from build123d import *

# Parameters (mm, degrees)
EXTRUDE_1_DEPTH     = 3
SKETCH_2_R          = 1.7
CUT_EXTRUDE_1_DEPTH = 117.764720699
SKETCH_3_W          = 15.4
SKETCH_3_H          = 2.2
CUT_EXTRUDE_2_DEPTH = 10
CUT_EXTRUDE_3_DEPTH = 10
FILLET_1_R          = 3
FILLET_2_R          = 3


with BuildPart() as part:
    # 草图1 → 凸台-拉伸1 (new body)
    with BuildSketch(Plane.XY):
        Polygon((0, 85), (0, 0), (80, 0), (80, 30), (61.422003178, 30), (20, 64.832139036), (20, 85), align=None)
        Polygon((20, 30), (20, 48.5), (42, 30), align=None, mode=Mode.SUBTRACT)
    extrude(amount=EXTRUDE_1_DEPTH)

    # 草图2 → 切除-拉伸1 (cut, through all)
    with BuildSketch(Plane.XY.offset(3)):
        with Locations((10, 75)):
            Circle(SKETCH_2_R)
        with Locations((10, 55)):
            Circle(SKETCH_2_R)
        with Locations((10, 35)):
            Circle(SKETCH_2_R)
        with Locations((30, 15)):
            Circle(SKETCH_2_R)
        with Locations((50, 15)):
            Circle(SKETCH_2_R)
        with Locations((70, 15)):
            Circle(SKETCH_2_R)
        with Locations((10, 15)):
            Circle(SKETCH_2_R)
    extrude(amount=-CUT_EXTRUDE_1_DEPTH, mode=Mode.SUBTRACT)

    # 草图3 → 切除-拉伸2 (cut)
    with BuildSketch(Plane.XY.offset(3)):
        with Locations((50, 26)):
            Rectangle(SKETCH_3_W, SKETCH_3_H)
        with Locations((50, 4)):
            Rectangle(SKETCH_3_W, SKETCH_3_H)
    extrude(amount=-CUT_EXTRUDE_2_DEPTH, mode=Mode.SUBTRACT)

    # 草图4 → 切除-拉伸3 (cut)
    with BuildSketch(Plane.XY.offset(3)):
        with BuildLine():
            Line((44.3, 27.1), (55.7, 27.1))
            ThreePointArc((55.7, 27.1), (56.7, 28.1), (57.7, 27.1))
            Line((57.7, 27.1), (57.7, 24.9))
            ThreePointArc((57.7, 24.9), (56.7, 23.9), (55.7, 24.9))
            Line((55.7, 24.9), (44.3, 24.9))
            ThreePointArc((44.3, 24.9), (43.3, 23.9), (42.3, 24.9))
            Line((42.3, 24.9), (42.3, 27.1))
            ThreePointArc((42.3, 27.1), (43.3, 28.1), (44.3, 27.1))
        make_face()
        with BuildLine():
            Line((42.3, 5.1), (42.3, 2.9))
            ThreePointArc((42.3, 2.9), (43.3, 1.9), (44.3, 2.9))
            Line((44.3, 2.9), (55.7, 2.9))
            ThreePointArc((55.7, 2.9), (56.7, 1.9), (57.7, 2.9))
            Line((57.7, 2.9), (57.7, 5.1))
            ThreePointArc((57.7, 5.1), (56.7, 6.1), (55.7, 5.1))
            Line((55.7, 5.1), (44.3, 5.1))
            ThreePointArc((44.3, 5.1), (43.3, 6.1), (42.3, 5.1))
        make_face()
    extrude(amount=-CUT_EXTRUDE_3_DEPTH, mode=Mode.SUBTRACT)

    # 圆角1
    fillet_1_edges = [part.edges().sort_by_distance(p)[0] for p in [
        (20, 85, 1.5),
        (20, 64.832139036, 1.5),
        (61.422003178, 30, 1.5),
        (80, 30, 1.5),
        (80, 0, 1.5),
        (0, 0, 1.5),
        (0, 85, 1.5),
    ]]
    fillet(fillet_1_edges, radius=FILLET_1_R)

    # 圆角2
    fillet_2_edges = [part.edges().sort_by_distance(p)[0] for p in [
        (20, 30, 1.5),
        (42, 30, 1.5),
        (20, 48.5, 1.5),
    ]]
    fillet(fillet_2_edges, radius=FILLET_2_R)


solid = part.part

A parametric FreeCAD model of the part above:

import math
import FreeCAD as App
import Part
import Sketcher
Q = App.Units.Quantity


def edges_at(feature, points):
    """Names of the edges that pass closest to the given points."""
    edges = feature.Shape.Edges
    near = lambda p: min(range(len(edges)), key=lambda i: edges[i].distToShape(Part.Vertex(*p))[0])
    return sorted({f"Edge{near(p) + 1}" for p in points})

doc = App.newDocument("Part")
body = doc.addObject("PartDesign::Body", "Body")

# Sketch on XY plane
sketch1 = body.newObject("Sketcher::SketchObject", "Sketch")
sketch1.AttachmentSupport = (doc.getObject("XY_Plane"), [""])
sketch1.MapMode = "FlatFace"
sketch1.addGeometry(Part.LineSegment(App.Vector(0, 85, 0), App.Vector(0, 0, 0)), False)
sketch1.addGeometry(Part.LineSegment(App.Vector(0, 0, 0), App.Vector(80, 0, 0)), False)
sketch1.addGeometry(Part.LineSegment(App.Vector(80, 0, 0), App.Vector(80, 30, 0)), False)
sketch1.addGeometry(Part.LineSegment(App.Vector(80, 30, 0), App.Vector(61, 30, 0)), False)
sketch1.addGeometry(Part.LineSegment(App.Vector(61, 30, 0), App.Vector(20, 65, 0)), False)
sketch1.addGeometry(Part.LineSegment(App.Vector(20, 65, 0), App.Vector(20, 85, 0)), False)
sketch1.addGeometry(Part.LineSegment(App.Vector(20, 85, 0), App.Vector(0, 85, 0)), False)
sketch1.addGeometry(Part.LineSegment(App.Vector(42, 30, 0), App.Vector(20, 30, 0)), False)
sketch1.addGeometry(Part.LineSegment(App.Vector(20, 30, 0), App.Vector(20, 48, 0)), False)
sketch1.addGeometry(Part.LineSegment(App.Vector(20, 48, 0), App.Vector(42, 30, 0)), False)
sketch1.addConstraint(Sketcher.Constraint("Coincident", 0, 2, 1, 1))
sketch1.addConstraint(Sketcher.Constraint("Coincident", 1, 2, 2, 1))
sketch1.addConstraint(Sketcher.Constraint("Coincident", 2, 2, 3, 1))
sketch1.addConstraint(Sketcher.Constraint("Coincident", 3, 2, 4, 1))
sketch1.addConstraint(Sketcher.Constraint("Coincident", 4, 2, 5, 1))
sketch1.addConstraint(Sketcher.Constraint("Coincident", 5, 2, 6, 1))
sketch1.addConstraint(Sketcher.Constraint("Coincident", 6, 2, 0, 1))
sketch1.addConstraint(Sketcher.Constraint("Coincident", 7, 2, 8, 1))
sketch1.addConstraint(Sketcher.Constraint("Coincident", 8, 2, 9, 1))
sketch1.addConstraint(Sketcher.Constraint("Coincident", 9, 2, 7, 1))
sketch1.addConstraint(Sketcher.Constraint("Vertical", 0))
sketch1.addConstraint(Sketcher.Constraint("Horizontal", 1))
sketch1.addConstraint(Sketcher.Constraint("Vertical", 2))
sketch1.addConstraint(Sketcher.Constraint("Horizontal", 3))
sketch1.addConstraint(Sketcher.Constraint("Vertical", 5))
sketch1.addConstraint(Sketcher.Constraint("Horizontal", 6))
sketch1.addConstraint(Sketcher.Constraint("Horizontal", 7))
sketch1.addConstraint(Sketcher.Constraint("Vertical", 8))
sketch1.addConstraint(Sketcher.Constraint("Coincident", 0, 2, -1, 1))
sketch1.addConstraint(Sketcher.Constraint("Parallel", 4, 9))
sketch1.addConstraint(Sketcher.Constraint("Horizontal", 3, 2, 7, 2))
sketch1.addConstraint(Sketcher.Constraint("Vertical", 5, 2, 7, 2))
sketch1.addConstraint(Sketcher.Constraint("DistanceX", 1, 1, 1, 2, Q("80 mm")))
sketch1.addConstraint(Sketcher.Constraint("DistanceX", 6, 2, 6, 1, Q("20 mm")))
sketch1.addConstraint(Sketcher.Constraint("DistanceX", 7, 2, 7, 1, Q("22 mm")))
sketch1.addConstraint(Sketcher.Constraint("DistanceY", 0, 2, 0, 1, Q("85 mm")))
sketch1.addConstraint(Sketcher.Constraint("DistanceY", 2, 1, 2, 2, Q("30 mm")))
sketch1.addConstraint(Sketcher.Constraint("DistanceY", 8, 1, 8, 2, Q("18.5 mm")))
sketch1.addConstraint(Sketcher.Constraint("DistanceY", 5, 1, 5, 2, Q("20.167861 mm")))
pad1 = body.newObject("PartDesign::Pad", "Pad")
pad1.Profile = sketch1
pad1.Length = 3

# Sketch on XY plane
sketch2 = body.newObject("Sketcher::SketchObject", "Sketch001")
sketch2.AttachmentSupport = (doc.getObject("XY_Plane"), [""])
sketch2.MapMode = "FlatFace"
sketch2.AttachmentOffset = App.Placement(App.Vector(0, 0, 3), App.Rotation())
sketch2.addGeometry(Part.Circle(App.Vector(10, 75, 0), App.Vector(0, 0, 1), 1.7), False)
sketch2.addGeometry(Part.Circle(App.Vector(10, 55, 0), App.Vector(0, 0, 1), 1.7), False)
sketch2.addGeometry(Part.Circle(App.Vector(10, 35, 0), App.Vector(0, 0, 1), 1.7), False)
sketch2.addGeometry(Part.Circle(App.Vector(30, 15, 0), App.Vector(0, 0, 1), 1.7), False)
sketch2.addGeometry(Part.Circle(App.Vector(50, 15, 0), App.Vector(0, 0, 1), 1.7), False)
sketch2.addGeometry(Part.Circle(App.Vector(70, 15, 0), App.Vector(0, 0, 1), 1.7), False)
sketch2.addGeometry(Part.Circle(App.Vector(10, 15, 0), App.Vector(0, 0, 1), 1.7), False)
sketch2.addConstraint(Sketcher.Constraint("Equal", 0, 1))
sketch2.addConstraint(Sketcher.Constraint("Equal", 1, 2))
sketch2.addConstraint(Sketcher.Constraint("Equal", 2, 3))
sketch2.addConstraint(Sketcher.Constraint("Equal", 3, 4))
sketch2.addConstraint(Sketcher.Constraint("Equal", 4, 5))
sketch2.addConstraint(Sketcher.Constraint("Equal", 5, 6))
sketch2.addConstraint(Sketcher.Constraint("Horizontal", 3, 3, 4, 3))
sketch2.addConstraint(Sketcher.Constraint("Horizontal", 4, 3, 5, 3))
sketch2.addConstraint(Sketcher.Constraint("Horizontal", 5, 3, 6, 3))
sketch2.addConstraint(Sketcher.Constraint("Vertical", 0, 3, 1, 3))
sketch2.addConstraint(Sketcher.Constraint("Vertical", 1, 3, 2, 3))
sketch2.addConstraint(Sketcher.Constraint("Vertical", 2, 3, 6, 3))
sketch2.addConstraint(Sketcher.Constraint("Diameter", 0, Q("3.4 mm")))
sketch2.addConstraint(Sketcher.Constraint("DistanceX", -1, 1, 0, 3, Q("10 mm")))
sketch2.addConstraint(Sketcher.Constraint("DistanceY", -1, 1, 0, 3, Q("75 mm")))
sketch2.addConstraint(Sketcher.Constraint("DistanceY", -1, 1, 1, 3, Q("55 mm")))
sketch2.addConstraint(Sketcher.Constraint("DistanceY", -1, 1, 2, 3, Q("35 mm")))
sketch2.addConstraint(Sketcher.Constraint("DistanceX", -1, 1, 3, 3, Q("30 mm")))
sketch2.addConstraint(Sketcher.Constraint("DistanceY", -1, 1, 3, 3, Q("15 mm")))
sketch2.addConstraint(Sketcher.Constraint("DistanceX", -1, 1, 4, 3, Q("50 mm")))
sketch2.addConstraint(Sketcher.Constraint("DistanceX", -1, 1, 5, 3, Q("70 mm")))
pocket1 = body.newObject("PartDesign::Pocket", "Pocket")
pocket1.Profile = sketch2
pocket1.Type = "ThroughAll"

# Sketch on XY plane
sketch3 = body.newObject("Sketcher::SketchObject", "Sketch002")
sketch3.AttachmentSupport = (doc.getObject("XY_Plane"), [""])
sketch3.MapMode = "FlatFace"
sketch3.AttachmentOffset = App.Placement(App.Vector(0, 0, 3), App.Rotation())
sketch3.addGeometry(Part.LineSegment(App.Vector(42.3, 27.1, 0), App.Vector(42.3, 24.9, 0)), False)
sketch3.addGeometry(Part.LineSegment(App.Vector(42.3, 24.9, 0), App.Vector(57.7, 24.9, 0)), False)
sketch3.addGeometry(Part.LineSegment(App.Vector(57.7, 24.9, 0), App.Vector(57.7, 27.1, 0)), False)
sketch3.addGeometry(Part.LineSegment(App.Vector(57.7, 27.1, 0), App.Vector(42.3, 27.1, 0)), False)
sketch3.addGeometry(Part.LineSegment(App.Vector(42.3, 5.1, 0), App.Vector(42.3, 2.9, 0)), False)
sketch3.addGeometry(Part.LineSegment(App.Vector(42.3, 2.9, 0), App.Vector(57.7, 2.9, 0)), False)
sketch3.addGeometry(Part.LineSegment(App.Vector(57.7, 2.9, 0), App.Vector(57.7, 5.1, 0)), False)
sketch3.addGeometry(Part.LineSegment(App.Vector(57.7, 5.1, 0), App.Vector(42.3, 5.1, 0)), False)
sketch3.addConstraint(Sketcher.Constraint("Coincident", 0, 2, 1, 1))
sketch3.addConstraint(Sketcher.Constraint("Coincident", 1, 2, 2, 1))
sketch3.addConstraint(Sketcher.Constraint("Coincident", 2, 2, 3, 1))
sketch3.addConstraint(Sketcher.Constraint("Coincident", 3, 2, 0, 1))
sketch3.addConstraint(Sketcher.Constraint("Coincident", 4, 2, 5, 1))
sketch3.addConstraint(Sketcher.Constraint("Coincident", 5, 2, 6, 1))
sketch3.addConstraint(Sketcher.Constraint("Coincident", 6, 2, 7, 1))
sketch3.addConstraint(Sketcher.Constraint("Coincident", 7, 2, 4, 1))
sketch3.addConstraint(Sketcher.Constraint("Vertical", 0))
sketch3.addConstraint(Sketcher.Constraint("Horizontal", 1))
sketch3.addConstraint(Sketcher.Constraint("Vertical", 2))
sketch3.addConstraint(Sketcher.Constraint("Horizontal", 3))
sketch3.addConstraint(Sketcher.Constraint("Vertical", 4))
sketch3.addConstraint(Sketcher.Constraint("Horizontal", 5))
sketch3.addConstraint(Sketcher.Constraint("Vertical", 6))
sketch3.addConstraint(Sketcher.Constraint("Horizontal", 7))
sketch3.addConstraint(Sketcher.Constraint("Vertical", 3, 2, 4, 2))
sketch3.addConstraint(Sketcher.Constraint("Vertical", 2, 2, 5, 2))
sketch3.addConstraint(Sketcher.Constraint("Equal", 2, 4))
sketch3.addConstraint(Sketcher.Constraint("DistanceX", 1, 1, 1, 2, Q("15.4 mm")))
sketch3.addConstraint(Sketcher.Constraint("DistanceY", 0, 2, 0, 1, Q("2.2 mm")))
sketch3.addConstraint(Sketcher.Constraint("DistanceY", 4, 2, 0, 2, Q("22 mm")))
sketch3.addConstraint(Sketcher.Constraint("DistanceX", -1, 1, 0, 2, Q("42.3 mm")))
sketch3.addConstraint(Sketcher.Constraint("DistanceY", -1, 1, 0, 2, Q("24.9 mm")))
pocket2 = body.newObject("PartDesign::Pocket", "Pocket001")
pocket2.Profile = sketch3
pocket2.Length = 10

# Sketch on XY plane
sketch4 = body.newObject("Sketcher::SketchObject", "Sketch003")
sketch4.AttachmentSupport = (doc.getObject("XY_Plane"), [""])
sketch4.MapMode = "FlatFace"
sketch4.AttachmentOffset = App.Placement(App.Vector(0, 0, 3), App.Rotation())
sketch4.addGeometry(Part.LineSegment(App.Vector(55.7, 27.1, 0), App.Vector(44.3, 27.1, 0)), False)
sketch4.addGeometry(Part.ArcOfCircle(Part.Circle(App.Vector(43.3, 27.1, 0), App.Vector(0, 0, 1), 1), math.radians(0), math.radians(180)), False)
sketch4.addGeometry(Part.LineSegment(App.Vector(42.3, 27.1, 0), App.Vector(42.3, 24.9, 0)), False)
sketch4.addGeometry(Part.ArcOfCircle(Part.Circle(App.Vector(43.3, 24.9, 0), App.Vector(0, 0, 1), 1), math.radians(180), math.radians(360)), False)
sketch4.addGeometry(Part.LineSegment(App.Vector(44.3, 24.9, 0), App.Vector(55.7, 24.9, 0)), False)
sketch4.addGeometry(Part.ArcOfCircle(Part.Circle(App.Vector(56.7, 24.9, 0), App.Vector(0, 0, 1), 1), math.radians(180), math.radians(360)), False)
sketch4.addGeometry(Part.LineSegment(App.Vector(57.7, 24.9, 0), App.Vector(57.7, 27.1, 0)), False)
sketch4.addGeometry(Part.ArcOfCircle(Part.Circle(App.Vector(56.7, 27.1, 0), App.Vector(0, 0, 1), 1), math.radians(0), math.radians(180)), False)
sketch4.addGeometry(Part.LineSegment(App.Vector(42.3, 5.1, 0), App.Vector(42.3, 2.9, 0)), False)
sketch4.addGeometry(Part.ArcOfCircle(Part.Circle(App.Vector(43.3, 2.9, 0), App.Vector(0, 0, 1), 1), math.radians(180), math.radians(360)), False)
sketch4.addGeometry(Part.LineSegment(App.Vector(44.3, 2.9, 0), App.Vector(55.7, 2.9, 0)), False)
sketch4.addGeometry(Part.ArcOfCircle(Part.Circle(App.Vector(56.7, 2.9, 0), App.Vector(0, 0, 1), 1), math.radians(180), math.radians(360)), False)
sketch4.addGeometry(Part.LineSegment(App.Vector(57.7, 2.9, 0), App.Vector(57.7, 5.1, 0)), False)
sketch4.addGeometry(Part.ArcOfCircle(Part.Circle(App.Vector(56.7, 5.1, 0), App.Vector(0, 0, 1), 1), math.radians(0), math.radians(180)), False)
sketch4.addGeometry(Part.LineSegment(App.Vector(55.7, 5.1, 0), App.Vector(44.3, 5.1, 0)), False)
sketch4.addGeometry(Part.ArcOfCircle(Part.Circle(App.Vector(43.3, 5.1, 0), App.Vector(0, 0, 1), 1), math.radians(0), math.radians(180)), False)
sketch4.addConstraint(Sketcher.Constraint("Coincident", 0, 2, 1, 1))
sketch4.addConstraint(Sketcher.Constraint("Tangent", 1, 2, 2, 1))
sketch4.addConstraint(Sketcher.Constraint("Tangent", 2, 2, 3, 1))
sketch4.addConstraint(Sketcher.Constraint("Coincident", 3, 2, 4, 1))
sketch4.addConstraint(Sketcher.Constraint("Coincident", 4, 2, 5, 1))
sketch4.addConstraint(Sketcher.Constraint("Tangent", 5, 2, 6, 1))
sketch4.addConstraint(Sketcher.Constraint("Tangent", 6, 2, 7, 1))
sketch4.addConstraint(Sketcher.Constraint("Coincident", 7, 2, 0, 1))
sketch4.addConstraint(Sketcher.Constraint("Tangent", 8, 2, 9, 1))
sketch4.addConstraint(Sketcher.Constraint("Coincident", 9, 2, 10, 1))
sketch4.addConstraint(Sketcher.Constraint("Coincident", 10, 2, 11, 1))
sketch4.addConstraint(Sketcher.Constraint("Tangent", 11, 2, 12, 1))
sketch4.addConstraint(Sketcher.Constraint("Tangent", 12, 2, 13, 1))
sketch4.addConstraint(Sketcher.Constraint("Coincident", 13, 2, 14, 1))
sketch4.addConstraint(Sketcher.Constraint("Coincident", 14, 2, 15, 1))
sketch4.addConstraint(Sketcher.Constraint("Tangent", 15, 2, 8, 1))
sketch4.addConstraint(Sketcher.Constraint("Horizontal", 0))
sketch4.addConstraint(Sketcher.Constraint("Vertical", 2))
sketch4.addConstraint(Sketcher.Constraint("Horizontal", 4))
sketch4.addConstraint(Sketcher.Constraint("Vertical", 6))
sketch4.addConstraint(Sketcher.Constraint("Vertical", 8))
sketch4.addConstraint(Sketcher.Constraint("Horizontal", 10))
sketch4.addConstraint(Sketcher.Constraint("Vertical", 12))
sketch4.addConstraint(Sketcher.Constraint("Horizontal", 14))
sketch4.addConstraint(Sketcher.Constraint("Equal", 1, 3))
sketch4.addConstraint(Sketcher.Constraint("Equal", 3, 5))
sketch4.addConstraint(Sketcher.Constraint("Equal", 5, 7))
sketch4.addConstraint(Sketcher.Constraint("Equal", 7, 9))
sketch4.addConstraint(Sketcher.Constraint("Equal", 9, 11))
sketch4.addConstraint(Sketcher.Constraint("Equal", 11, 13))
sketch4.addConstraint(Sketcher.Constraint("Equal", 13, 15))
sketch4.addConstraint(Sketcher.Constraint("Horizontal", 3, 3, 5, 3))
sketch4.addConstraint(Sketcher.Constraint("Horizontal", 1, 3, 7, 3))
sketch4.addConstraint(Sketcher.Constraint("Horizontal", 9, 3, 11, 3))
sketch4.addConstraint(Sketcher.Constraint("Horizontal", 13, 3, 15, 3))
sketch4.addConstraint(Sketcher.Constraint("Horizontal", 7, 3, 0, 2))
sketch4.addConstraint(Sketcher.Constraint("Horizontal", 2, 2, 3, 2))
sketch4.addConstraint(Sketcher.Constraint("Horizontal", 8, 2, 9, 2))
sketch4.addConstraint(Sketcher.Constraint("Horizontal", 12, 2, 13, 2))
sketch4.addConstraint(Sketcher.Constraint("Vertical", 3, 3, 9, 3))
sketch4.addConstraint(Sketcher.Constraint("Vertical", 7, 3, 11, 3))
sketch4.addConstraint(Sketcher.Constraint("Equal", 6, 8))
sketch4.addConstraint(Sketcher.Constraint("Radius", 1, Q("1 mm")))
sketch4.addConstraint(Sketcher.Constraint("DistanceX", 0, 2, 0, 1, Q("11.4 mm")))
sketch4.addConstraint(Sketcher.Constraint("DistanceY", 2, 2, 2, 1, Q("2.2 mm")))
sketch4.addConstraint(Sketcher.Constraint("DistanceY", 9, 3, 3, 3, Q("22 mm")))
sketch4.addConstraint(Sketcher.Constraint("DistanceX", -1, 1, 1, 3, Q("43.3 mm")))
sketch4.addConstraint(Sketcher.Constraint("DistanceY", -1, 1, 1, 3, Q("27.1 mm")))
pocket3 = body.newObject("PartDesign::Pocket", "Pocket002")
pocket3.Profile = sketch4
pocket3.Length = 10
doc.recompute()

fillet = body.newObject("PartDesign::Fillet", "Fillet")
fillet.Base = (pocket3, edges_at(pocket3, [
    (20, 85, 1.5),
    (20, 64.832, 1.5),
    (61.422, 30, 1.5),
    (80, 30, 1.5),
    (80, 0, 1.5),
    (0, 0, 1.5),
    (0, 85, 1.5),
]))
fillet.Radius = 3
doc.recompute()

fillet2 = body.newObject("PartDesign::Fillet", "Fillet001")
fillet2.Base = (fillet, edges_at(fillet, [(20, 30, 1.5), (42, 30, 1.5), (20, 48.5, 1.5)]))
fillet2.Radius = 3

doc.recompute()
